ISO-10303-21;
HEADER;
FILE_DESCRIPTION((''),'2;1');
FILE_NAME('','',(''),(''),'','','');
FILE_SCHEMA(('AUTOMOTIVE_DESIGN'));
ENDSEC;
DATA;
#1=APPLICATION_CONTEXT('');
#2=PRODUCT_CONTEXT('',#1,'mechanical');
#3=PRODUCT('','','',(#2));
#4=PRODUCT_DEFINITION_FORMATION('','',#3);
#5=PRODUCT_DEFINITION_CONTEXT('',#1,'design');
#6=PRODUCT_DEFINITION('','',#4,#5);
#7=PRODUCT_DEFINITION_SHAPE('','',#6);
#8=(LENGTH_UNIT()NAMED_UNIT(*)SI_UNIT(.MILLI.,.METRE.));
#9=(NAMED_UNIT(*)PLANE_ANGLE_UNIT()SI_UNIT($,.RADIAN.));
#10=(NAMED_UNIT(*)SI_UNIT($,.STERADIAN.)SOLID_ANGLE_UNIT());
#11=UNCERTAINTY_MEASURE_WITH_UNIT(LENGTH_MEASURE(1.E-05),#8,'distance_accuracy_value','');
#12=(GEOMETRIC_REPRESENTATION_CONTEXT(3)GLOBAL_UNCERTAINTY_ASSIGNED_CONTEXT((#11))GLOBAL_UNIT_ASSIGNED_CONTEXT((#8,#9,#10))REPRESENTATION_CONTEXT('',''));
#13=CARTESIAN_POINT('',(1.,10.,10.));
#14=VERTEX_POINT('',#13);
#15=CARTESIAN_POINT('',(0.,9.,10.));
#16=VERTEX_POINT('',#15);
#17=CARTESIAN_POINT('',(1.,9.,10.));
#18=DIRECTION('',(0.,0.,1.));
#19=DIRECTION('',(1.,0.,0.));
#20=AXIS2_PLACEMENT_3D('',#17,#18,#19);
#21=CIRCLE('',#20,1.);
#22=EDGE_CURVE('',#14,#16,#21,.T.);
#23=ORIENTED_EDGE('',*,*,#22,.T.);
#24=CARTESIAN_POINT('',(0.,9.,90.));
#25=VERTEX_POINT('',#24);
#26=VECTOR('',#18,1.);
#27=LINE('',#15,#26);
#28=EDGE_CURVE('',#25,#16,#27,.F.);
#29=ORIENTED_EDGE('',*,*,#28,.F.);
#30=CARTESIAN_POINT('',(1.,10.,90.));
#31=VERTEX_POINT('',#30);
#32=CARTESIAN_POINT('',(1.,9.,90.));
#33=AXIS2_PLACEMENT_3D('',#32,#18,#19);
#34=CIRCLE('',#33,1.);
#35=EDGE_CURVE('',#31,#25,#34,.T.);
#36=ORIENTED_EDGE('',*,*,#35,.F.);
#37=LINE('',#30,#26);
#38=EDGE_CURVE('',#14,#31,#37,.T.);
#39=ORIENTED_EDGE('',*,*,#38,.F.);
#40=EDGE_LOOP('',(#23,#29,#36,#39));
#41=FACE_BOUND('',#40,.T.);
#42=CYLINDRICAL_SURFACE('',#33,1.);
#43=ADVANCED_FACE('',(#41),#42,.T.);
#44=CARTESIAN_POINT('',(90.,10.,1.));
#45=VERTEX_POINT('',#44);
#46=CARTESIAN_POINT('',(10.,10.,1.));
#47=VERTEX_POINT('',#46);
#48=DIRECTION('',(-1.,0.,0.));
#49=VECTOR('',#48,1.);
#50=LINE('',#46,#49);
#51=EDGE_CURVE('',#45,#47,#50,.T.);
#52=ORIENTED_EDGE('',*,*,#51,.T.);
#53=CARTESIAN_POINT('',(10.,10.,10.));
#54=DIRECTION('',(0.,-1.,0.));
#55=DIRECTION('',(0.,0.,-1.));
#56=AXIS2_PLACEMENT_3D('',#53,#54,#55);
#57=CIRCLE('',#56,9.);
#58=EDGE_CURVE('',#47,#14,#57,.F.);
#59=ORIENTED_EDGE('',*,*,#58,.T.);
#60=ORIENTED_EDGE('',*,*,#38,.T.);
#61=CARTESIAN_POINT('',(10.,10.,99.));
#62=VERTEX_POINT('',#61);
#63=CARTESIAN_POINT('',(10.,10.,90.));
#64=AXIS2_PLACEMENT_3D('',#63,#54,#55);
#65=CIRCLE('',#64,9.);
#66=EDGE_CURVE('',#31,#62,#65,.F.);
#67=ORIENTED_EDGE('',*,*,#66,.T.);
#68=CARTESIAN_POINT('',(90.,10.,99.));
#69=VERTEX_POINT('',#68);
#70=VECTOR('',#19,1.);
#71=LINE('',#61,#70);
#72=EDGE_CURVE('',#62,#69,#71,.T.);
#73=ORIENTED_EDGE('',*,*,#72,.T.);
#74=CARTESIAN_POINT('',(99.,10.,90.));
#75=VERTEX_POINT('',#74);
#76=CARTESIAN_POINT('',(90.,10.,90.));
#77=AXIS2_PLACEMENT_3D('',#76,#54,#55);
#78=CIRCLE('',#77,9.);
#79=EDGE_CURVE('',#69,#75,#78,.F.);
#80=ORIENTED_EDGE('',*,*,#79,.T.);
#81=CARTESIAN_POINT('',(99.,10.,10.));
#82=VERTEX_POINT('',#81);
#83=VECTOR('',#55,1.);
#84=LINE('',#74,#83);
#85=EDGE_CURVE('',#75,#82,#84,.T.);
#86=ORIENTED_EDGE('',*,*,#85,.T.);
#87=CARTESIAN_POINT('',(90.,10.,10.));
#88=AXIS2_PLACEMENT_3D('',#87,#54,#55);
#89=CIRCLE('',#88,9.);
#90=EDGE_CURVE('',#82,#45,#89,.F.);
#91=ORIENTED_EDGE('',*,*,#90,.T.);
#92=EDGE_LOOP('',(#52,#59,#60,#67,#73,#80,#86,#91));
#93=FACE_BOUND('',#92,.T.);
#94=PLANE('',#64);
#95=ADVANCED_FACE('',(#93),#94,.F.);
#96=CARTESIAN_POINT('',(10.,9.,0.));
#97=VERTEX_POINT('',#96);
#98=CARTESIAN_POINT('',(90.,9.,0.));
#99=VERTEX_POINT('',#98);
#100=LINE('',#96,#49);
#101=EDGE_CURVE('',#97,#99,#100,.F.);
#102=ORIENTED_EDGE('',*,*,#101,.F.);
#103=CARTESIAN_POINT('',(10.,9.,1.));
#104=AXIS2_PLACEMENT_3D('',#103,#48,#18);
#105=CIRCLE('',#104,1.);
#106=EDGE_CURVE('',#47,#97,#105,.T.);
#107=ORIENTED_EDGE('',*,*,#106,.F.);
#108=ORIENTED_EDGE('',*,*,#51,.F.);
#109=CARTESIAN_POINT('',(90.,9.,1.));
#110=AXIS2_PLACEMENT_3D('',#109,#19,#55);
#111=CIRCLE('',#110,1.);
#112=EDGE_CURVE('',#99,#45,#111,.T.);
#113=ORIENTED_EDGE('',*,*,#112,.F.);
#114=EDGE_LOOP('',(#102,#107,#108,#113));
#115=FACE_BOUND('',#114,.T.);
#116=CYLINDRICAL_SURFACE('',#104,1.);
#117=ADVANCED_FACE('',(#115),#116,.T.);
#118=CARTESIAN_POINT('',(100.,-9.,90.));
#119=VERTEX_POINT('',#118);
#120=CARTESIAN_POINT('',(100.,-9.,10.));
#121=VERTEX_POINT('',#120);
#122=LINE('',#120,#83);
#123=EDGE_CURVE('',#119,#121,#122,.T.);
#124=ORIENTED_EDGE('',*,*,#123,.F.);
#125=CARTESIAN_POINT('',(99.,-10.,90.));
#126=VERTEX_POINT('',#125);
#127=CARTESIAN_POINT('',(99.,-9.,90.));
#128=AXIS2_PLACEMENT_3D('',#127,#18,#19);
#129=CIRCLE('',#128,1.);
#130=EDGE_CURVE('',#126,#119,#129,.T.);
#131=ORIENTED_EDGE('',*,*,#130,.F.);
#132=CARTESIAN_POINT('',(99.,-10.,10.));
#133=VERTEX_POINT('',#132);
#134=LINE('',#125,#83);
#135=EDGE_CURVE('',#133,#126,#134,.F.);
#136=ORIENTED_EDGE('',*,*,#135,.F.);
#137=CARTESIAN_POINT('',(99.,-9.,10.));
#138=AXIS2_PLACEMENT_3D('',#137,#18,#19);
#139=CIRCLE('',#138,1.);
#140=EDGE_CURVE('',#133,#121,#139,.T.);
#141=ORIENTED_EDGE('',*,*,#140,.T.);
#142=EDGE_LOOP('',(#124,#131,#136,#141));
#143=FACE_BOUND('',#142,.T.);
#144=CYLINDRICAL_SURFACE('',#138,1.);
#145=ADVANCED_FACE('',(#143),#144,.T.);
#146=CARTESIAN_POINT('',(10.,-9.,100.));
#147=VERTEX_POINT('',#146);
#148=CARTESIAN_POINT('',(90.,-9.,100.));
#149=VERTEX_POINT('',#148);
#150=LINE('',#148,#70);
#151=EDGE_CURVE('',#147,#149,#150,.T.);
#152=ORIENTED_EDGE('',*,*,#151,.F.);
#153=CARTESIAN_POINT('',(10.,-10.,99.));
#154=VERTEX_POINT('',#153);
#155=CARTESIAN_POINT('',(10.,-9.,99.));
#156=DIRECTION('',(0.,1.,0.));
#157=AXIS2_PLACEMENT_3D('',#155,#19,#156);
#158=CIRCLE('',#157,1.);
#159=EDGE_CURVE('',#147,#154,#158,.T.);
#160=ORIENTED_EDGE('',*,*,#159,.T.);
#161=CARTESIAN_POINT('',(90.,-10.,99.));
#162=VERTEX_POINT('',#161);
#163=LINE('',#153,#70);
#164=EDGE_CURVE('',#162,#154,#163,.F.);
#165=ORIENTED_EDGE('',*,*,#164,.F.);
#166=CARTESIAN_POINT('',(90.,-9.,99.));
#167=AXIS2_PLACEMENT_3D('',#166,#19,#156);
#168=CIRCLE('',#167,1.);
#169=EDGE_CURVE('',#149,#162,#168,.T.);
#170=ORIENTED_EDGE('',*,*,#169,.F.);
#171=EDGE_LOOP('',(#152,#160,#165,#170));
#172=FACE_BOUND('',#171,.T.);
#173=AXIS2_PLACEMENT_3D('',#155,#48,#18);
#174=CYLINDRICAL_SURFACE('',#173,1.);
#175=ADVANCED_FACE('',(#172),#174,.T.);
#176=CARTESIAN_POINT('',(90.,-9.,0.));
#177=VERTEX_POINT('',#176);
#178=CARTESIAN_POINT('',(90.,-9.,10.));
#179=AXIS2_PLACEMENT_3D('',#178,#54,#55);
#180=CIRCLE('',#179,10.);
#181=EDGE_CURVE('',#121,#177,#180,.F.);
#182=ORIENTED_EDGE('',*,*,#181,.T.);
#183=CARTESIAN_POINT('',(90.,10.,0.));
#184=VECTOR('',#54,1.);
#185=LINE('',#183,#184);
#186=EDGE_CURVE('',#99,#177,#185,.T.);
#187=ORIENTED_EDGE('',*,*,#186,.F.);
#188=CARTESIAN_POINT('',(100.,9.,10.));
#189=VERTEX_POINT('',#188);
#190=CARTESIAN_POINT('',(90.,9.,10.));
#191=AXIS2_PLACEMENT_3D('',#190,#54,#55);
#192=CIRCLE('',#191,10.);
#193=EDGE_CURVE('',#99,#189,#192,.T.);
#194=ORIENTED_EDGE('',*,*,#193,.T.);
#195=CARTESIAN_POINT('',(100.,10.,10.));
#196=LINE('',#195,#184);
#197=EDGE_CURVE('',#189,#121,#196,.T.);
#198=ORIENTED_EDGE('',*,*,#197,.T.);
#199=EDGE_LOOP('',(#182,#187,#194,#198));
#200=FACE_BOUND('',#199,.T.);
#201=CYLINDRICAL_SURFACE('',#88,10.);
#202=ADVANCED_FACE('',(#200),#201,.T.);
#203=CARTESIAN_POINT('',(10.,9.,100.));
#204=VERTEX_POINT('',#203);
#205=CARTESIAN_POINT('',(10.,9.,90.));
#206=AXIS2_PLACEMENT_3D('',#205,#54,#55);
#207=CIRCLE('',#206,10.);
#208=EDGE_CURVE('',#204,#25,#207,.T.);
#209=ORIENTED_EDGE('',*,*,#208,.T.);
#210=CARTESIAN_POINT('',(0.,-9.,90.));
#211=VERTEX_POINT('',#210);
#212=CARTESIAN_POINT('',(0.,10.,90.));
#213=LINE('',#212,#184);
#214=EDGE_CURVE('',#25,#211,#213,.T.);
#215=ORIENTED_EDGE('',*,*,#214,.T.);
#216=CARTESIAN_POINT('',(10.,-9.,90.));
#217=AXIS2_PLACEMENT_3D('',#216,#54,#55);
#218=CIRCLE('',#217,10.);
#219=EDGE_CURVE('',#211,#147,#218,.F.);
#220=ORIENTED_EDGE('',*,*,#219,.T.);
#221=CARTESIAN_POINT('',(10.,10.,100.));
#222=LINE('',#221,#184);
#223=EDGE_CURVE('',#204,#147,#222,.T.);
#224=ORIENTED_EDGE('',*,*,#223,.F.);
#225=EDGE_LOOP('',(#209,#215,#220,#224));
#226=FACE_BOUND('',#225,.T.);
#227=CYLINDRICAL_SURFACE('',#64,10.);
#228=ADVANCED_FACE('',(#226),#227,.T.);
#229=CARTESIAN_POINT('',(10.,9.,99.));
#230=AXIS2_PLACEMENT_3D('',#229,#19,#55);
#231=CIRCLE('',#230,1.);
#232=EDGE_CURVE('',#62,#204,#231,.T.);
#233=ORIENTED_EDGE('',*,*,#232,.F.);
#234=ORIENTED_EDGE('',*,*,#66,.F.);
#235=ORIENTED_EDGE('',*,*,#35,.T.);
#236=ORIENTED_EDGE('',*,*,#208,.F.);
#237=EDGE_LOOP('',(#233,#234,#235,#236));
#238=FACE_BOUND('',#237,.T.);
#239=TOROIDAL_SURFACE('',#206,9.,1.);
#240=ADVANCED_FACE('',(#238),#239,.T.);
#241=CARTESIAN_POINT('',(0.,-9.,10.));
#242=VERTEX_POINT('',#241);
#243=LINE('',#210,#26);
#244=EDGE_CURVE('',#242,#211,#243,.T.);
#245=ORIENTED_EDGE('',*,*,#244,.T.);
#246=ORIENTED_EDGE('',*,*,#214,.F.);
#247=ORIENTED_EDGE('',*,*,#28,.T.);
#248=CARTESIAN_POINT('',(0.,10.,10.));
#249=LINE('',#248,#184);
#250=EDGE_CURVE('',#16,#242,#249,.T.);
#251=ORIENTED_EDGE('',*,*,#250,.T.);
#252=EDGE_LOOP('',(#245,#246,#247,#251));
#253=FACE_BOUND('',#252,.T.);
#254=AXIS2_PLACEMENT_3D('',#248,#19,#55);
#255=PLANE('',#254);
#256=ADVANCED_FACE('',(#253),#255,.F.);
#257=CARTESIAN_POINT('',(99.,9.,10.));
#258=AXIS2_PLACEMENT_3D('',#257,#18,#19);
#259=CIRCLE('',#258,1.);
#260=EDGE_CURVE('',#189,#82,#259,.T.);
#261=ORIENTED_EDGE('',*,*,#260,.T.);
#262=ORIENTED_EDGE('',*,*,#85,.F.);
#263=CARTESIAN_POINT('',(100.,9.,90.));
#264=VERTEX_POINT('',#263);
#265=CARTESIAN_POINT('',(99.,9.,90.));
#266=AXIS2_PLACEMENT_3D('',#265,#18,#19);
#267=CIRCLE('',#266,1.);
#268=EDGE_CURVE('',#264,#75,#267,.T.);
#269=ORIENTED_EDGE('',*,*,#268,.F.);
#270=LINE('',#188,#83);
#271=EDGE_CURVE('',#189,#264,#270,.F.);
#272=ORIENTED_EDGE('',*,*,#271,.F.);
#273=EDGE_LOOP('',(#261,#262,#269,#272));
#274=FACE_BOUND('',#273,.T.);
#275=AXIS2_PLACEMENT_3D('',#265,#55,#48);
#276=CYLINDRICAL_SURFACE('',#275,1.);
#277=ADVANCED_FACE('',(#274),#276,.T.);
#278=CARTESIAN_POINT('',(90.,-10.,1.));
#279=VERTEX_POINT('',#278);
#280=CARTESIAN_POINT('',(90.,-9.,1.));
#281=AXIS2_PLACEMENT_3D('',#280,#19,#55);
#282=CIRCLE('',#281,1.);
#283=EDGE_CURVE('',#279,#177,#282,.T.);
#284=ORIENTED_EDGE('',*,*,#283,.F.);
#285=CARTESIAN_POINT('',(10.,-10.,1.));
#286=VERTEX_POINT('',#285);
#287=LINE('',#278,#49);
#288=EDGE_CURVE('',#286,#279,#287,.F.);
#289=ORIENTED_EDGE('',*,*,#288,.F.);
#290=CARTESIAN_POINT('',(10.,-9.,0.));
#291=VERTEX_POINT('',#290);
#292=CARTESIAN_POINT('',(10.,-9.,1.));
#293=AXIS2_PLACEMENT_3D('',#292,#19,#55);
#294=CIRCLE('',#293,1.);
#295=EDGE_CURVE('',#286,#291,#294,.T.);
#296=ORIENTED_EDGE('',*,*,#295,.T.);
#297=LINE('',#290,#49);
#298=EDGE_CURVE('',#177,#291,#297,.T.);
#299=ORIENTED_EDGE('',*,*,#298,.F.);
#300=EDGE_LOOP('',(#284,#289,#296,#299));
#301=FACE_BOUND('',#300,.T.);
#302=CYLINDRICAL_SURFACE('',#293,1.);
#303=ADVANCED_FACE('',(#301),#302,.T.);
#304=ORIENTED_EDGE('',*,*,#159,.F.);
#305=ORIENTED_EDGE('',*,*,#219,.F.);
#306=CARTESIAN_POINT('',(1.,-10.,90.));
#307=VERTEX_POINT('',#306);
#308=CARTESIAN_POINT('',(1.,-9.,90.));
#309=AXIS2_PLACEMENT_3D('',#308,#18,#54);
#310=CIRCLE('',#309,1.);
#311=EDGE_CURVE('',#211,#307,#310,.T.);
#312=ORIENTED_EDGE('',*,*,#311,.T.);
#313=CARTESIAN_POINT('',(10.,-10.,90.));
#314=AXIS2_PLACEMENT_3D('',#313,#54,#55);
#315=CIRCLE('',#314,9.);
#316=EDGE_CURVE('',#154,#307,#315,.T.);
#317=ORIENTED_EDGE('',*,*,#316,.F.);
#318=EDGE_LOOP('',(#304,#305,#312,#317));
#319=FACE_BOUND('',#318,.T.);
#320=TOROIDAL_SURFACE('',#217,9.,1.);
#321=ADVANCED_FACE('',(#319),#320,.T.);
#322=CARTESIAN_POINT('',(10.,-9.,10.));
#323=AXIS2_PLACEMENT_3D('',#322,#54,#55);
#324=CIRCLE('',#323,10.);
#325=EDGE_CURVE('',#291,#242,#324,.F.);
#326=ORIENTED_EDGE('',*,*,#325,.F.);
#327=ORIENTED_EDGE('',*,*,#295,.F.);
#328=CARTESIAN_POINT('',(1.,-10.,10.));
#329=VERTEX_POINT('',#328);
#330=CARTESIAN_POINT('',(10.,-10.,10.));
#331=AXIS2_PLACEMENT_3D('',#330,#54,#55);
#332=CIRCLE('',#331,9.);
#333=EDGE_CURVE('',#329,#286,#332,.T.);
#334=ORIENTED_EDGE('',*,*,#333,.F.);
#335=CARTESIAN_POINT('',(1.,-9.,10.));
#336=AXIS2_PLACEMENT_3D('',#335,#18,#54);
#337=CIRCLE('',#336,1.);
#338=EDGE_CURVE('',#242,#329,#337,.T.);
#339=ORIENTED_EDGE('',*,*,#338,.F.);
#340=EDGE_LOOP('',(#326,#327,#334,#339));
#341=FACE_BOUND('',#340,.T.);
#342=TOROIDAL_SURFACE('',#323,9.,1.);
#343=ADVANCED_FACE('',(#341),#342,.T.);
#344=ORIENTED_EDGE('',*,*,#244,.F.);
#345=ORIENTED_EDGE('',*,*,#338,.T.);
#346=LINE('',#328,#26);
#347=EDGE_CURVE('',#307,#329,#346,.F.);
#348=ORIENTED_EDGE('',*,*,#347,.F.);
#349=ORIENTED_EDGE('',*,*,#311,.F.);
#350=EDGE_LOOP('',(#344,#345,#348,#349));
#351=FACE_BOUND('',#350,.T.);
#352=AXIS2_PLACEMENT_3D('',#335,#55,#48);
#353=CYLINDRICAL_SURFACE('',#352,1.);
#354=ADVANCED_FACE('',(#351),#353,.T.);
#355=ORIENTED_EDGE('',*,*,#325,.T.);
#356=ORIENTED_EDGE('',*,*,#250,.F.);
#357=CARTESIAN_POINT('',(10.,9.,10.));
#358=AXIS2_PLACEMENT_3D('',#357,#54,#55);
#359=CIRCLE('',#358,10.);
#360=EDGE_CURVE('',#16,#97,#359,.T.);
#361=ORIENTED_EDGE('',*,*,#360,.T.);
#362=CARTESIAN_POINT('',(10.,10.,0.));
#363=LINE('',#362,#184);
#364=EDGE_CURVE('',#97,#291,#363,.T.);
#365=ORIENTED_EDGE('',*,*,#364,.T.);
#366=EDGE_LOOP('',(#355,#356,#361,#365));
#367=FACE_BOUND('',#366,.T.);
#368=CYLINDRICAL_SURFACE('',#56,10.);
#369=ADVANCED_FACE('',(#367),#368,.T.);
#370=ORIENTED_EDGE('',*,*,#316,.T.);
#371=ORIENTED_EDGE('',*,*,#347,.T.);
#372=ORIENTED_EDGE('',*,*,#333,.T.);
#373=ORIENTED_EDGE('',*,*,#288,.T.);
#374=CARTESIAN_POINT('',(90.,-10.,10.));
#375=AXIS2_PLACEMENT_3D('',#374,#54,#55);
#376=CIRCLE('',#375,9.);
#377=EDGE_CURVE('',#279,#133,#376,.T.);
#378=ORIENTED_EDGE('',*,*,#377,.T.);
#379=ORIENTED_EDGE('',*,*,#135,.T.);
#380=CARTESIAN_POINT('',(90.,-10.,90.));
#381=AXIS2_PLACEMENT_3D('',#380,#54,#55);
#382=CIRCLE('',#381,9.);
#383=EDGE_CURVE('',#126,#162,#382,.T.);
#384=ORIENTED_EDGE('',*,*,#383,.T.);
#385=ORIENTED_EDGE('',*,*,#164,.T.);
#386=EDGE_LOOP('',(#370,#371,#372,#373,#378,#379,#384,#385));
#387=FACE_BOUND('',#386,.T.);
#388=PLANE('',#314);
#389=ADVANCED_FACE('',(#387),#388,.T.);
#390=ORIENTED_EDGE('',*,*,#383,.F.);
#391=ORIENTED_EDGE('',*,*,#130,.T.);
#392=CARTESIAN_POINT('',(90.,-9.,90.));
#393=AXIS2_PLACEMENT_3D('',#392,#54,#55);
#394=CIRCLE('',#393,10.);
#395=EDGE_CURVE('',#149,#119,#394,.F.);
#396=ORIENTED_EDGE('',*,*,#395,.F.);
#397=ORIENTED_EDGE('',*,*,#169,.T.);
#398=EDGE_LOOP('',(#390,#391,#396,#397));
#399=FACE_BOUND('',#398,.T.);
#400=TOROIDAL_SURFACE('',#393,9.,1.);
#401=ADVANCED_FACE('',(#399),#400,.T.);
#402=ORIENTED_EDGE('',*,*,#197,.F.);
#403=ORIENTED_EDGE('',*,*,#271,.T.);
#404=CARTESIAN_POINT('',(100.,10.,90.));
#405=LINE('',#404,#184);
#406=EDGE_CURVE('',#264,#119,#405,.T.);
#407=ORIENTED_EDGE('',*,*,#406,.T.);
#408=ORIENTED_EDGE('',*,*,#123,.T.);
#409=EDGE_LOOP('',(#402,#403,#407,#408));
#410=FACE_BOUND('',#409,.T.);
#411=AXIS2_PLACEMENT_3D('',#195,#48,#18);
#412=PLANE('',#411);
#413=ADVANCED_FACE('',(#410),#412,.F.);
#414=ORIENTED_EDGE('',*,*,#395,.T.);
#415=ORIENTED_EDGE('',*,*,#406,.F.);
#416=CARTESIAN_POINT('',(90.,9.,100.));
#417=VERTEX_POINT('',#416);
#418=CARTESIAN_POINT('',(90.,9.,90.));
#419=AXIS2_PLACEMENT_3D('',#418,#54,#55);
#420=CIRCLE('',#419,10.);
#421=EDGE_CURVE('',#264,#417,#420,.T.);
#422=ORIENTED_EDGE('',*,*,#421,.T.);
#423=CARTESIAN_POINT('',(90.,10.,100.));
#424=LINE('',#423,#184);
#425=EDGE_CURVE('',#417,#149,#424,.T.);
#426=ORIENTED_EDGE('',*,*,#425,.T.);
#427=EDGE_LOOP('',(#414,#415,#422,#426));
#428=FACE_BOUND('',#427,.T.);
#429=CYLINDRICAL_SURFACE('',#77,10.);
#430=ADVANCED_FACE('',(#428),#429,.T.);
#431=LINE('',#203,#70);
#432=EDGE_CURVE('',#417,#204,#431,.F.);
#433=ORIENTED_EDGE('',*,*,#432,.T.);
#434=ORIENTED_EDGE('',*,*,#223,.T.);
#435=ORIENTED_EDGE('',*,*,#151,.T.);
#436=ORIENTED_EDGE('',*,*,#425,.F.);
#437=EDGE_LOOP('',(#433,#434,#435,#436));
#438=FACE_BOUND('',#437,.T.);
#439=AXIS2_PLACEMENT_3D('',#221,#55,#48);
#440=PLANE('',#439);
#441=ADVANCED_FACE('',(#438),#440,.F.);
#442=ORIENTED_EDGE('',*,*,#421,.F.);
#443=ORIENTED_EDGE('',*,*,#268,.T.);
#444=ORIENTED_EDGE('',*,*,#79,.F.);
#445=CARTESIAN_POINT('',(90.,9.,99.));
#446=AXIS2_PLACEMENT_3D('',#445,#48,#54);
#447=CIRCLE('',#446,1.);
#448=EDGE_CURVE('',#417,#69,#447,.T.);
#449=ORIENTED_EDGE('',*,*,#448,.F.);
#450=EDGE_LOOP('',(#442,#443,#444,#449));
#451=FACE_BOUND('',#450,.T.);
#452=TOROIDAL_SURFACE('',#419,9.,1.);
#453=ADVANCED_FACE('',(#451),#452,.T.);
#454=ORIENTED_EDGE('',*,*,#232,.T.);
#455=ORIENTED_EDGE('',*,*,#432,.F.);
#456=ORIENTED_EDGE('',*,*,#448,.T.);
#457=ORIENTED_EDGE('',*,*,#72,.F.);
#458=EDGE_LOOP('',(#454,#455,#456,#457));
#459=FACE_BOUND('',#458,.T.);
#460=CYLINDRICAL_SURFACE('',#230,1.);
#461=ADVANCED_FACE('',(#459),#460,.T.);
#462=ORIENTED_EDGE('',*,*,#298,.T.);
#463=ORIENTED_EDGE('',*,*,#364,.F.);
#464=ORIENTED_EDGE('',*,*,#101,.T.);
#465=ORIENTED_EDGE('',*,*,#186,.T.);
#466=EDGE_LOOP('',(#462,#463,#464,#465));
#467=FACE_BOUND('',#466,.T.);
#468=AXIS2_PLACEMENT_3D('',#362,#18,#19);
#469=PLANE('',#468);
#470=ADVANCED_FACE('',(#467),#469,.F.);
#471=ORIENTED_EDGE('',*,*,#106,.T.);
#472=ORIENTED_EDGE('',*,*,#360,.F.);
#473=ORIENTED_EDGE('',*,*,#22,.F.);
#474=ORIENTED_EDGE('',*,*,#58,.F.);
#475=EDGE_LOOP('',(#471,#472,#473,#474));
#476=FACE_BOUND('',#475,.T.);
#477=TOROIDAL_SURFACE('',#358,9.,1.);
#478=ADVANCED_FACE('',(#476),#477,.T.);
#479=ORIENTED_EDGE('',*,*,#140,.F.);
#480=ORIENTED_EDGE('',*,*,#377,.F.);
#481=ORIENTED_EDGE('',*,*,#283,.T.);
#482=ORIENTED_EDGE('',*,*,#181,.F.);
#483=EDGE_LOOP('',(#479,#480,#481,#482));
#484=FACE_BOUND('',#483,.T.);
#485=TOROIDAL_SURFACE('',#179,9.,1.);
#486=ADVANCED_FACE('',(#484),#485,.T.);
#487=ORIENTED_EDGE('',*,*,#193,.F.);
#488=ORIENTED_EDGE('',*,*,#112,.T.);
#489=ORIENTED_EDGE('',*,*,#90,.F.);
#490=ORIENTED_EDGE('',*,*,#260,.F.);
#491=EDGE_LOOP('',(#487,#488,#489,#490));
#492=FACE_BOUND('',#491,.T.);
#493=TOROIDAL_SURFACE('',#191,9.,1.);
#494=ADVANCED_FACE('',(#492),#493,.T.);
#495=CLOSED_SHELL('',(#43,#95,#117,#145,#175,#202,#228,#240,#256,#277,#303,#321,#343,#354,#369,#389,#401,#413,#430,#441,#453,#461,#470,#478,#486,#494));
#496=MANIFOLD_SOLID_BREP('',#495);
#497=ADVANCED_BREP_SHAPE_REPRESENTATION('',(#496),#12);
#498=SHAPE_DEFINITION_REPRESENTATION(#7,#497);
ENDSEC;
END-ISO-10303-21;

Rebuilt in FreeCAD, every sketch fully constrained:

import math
import FreeCAD as App
import Part
import Sketcher

V = App.Vector


def edges_at(feature, points):
    """Names of the edges that pass closest to the given points."""
    edges = feature.Shape.Edges
    near = lambda p: min(range(len(edges)), key=lambda i: edges[i].distToShape(Part.Vertex(*p))[0])
    return sorted({f"Edge{near(p) + 1}" for p in points})

doc = App.newDocument("Part")
body = doc.addObject("PartDesign::Body", "Body")

# Sketch on XZ plane
sketch1 = body.newObject("Sketcher::SketchObject", "Sketch")
sketch1.AttachmentSupport = (doc.getObject("XZ_Plane"), [""])
sketch1.MapMode = "FlatFace"
sketch1.addGeometry(Part.LineSegment(V(90, 0, 0), V(10, 0, 0)), False)
sketch1.addGeometry(Part.ArcOfCircle(Part.Circle(V(10, 10, 0), V(0, 0, 1), 10), math.radians(180), math.radians(270)), False)
sketch1.addGeometry(Part.LineSegment(V(0, 10, 0), V(0, 90, 0)), False)
sketch1.addGeometry(Part.ArcOfCircle(Part.Circle(V(10, 90, 0), V(0, 0, 1), 10), math.radians(90), math.radians(180)), False)
sketch1.addGeometry(Part.LineSegment(V(10, 100, 0), V(90, 100, 0)), False)
sketch1.addGeometry(Part.ArcOfCircle(Part.Circle(V(90, 90, 0), V(0, 0, 1), 10), math.radians(0), math.radians(90)), False)
sketch1.addGeometry(Part.LineSegment(V(100, 90, 0), V(100, 10, 0)), False)
sketch1.addGeometry(Part.ArcOfCircle(Part.Circle(V(90, 10, 0), V(0, 0, 1), 10), math.radians(-90), math.radians(0)), False)
sketch1.addConstraint(Sketcher.Constraint("Tangent", 0, 2, 1, 2))
sketch1.addConstraint(Sketcher.Constraint("Tangent", 1, 1, 2, 1))
sketch1.addConstraint(Sketcher.Constraint("Tangent", 2, 2, 3, 2))
sketch1.addConstraint(Sketcher.Constraint("Tangent", 3, 1, 4, 1))
sketch1.addConstraint(Sketcher.Constraint("Tangent", 4, 2, 5, 2))
sketch1.addConstraint(Sketcher.Constraint("Tangent", 5, 1, 6, 1))
sketch1.addConstraint(Sketcher.Constraint("Tangent", 6, 2, 7, 2))
sketch1.addConstraint(Sketcher.Constraint("Tangent", 7, 1, 0, 1))
sketch1.addConstraint(Sketcher.Constraint("Horizontal", 0))
sketch1.addConstraint(Sketcher.Constraint("Vertical", 2))
sketch1.addConstraint(Sketcher.Constraint("Horizontal", 4))
sketch1.addConstraint(Sketcher.Constraint("Vertical", 6))
sketch1.addConstraint(Sketcher.Constraint("Equal", 1, 3))
sketch1.addConstraint(Sketcher.Constraint("Equal", 3, 5))
sketch1.addConstraint(Sketcher.Constraint("Equal", 5, 7))
sketch1.addConstraint(Sketcher.Constraint("PointOnObject", 0, 2, -1))
sketch1.addConstraint(Sketcher.Constraint("PointOnObject", 1, 1, -2))
sketch1.addConstraint(Sketcher.Constraint("Equal", 4, 2))
sketch1.addConstraint(Sketcher.Constraint("Radius", 1, 10.0))
sketch1.addConstraint(Sketcher.Constraint("DistanceX", 0, 2, 0, 1, 80.0))
pad1 = body.newObject("PartDesign::Pad", "Pad")
pad1.Profile = sketch1
pad1.Length = 20
pad1.Midplane = True
doc.recompute()

fillet = body.newObject("PartDesign::Fillet", "Fillet")
fillet.Base = (pad1, edges_at(pad1, [
    (100, -10, 50),
    (97.071, -10, 97.071),
    (50, -10, 100),
    (2.929, -10, 97.071),
    (0, -10, 50),
    (2.929, -10, 2.929),
    (50, -10, 0),
    (97.071, -10, 2.929),
]))
fillet.Radius = 1
doc.recompute()

fillet2 = body.newObject("PartDesign::Fillet", "Fillet001")
fillet2.Base = (fillet, edges_at(fillet, [
    (97.071, 10, 97.071),
    (100, 10, 50),
    (97.071, 10, 2.929),
    (50, 10, 0),
    (2.929, 10, 2.929),
    (0, 10, 50),
    (2.929, 10, 97.071),
    (50, 10, 100),
]))
fillet2.Radius = 1

doc.recompute()
